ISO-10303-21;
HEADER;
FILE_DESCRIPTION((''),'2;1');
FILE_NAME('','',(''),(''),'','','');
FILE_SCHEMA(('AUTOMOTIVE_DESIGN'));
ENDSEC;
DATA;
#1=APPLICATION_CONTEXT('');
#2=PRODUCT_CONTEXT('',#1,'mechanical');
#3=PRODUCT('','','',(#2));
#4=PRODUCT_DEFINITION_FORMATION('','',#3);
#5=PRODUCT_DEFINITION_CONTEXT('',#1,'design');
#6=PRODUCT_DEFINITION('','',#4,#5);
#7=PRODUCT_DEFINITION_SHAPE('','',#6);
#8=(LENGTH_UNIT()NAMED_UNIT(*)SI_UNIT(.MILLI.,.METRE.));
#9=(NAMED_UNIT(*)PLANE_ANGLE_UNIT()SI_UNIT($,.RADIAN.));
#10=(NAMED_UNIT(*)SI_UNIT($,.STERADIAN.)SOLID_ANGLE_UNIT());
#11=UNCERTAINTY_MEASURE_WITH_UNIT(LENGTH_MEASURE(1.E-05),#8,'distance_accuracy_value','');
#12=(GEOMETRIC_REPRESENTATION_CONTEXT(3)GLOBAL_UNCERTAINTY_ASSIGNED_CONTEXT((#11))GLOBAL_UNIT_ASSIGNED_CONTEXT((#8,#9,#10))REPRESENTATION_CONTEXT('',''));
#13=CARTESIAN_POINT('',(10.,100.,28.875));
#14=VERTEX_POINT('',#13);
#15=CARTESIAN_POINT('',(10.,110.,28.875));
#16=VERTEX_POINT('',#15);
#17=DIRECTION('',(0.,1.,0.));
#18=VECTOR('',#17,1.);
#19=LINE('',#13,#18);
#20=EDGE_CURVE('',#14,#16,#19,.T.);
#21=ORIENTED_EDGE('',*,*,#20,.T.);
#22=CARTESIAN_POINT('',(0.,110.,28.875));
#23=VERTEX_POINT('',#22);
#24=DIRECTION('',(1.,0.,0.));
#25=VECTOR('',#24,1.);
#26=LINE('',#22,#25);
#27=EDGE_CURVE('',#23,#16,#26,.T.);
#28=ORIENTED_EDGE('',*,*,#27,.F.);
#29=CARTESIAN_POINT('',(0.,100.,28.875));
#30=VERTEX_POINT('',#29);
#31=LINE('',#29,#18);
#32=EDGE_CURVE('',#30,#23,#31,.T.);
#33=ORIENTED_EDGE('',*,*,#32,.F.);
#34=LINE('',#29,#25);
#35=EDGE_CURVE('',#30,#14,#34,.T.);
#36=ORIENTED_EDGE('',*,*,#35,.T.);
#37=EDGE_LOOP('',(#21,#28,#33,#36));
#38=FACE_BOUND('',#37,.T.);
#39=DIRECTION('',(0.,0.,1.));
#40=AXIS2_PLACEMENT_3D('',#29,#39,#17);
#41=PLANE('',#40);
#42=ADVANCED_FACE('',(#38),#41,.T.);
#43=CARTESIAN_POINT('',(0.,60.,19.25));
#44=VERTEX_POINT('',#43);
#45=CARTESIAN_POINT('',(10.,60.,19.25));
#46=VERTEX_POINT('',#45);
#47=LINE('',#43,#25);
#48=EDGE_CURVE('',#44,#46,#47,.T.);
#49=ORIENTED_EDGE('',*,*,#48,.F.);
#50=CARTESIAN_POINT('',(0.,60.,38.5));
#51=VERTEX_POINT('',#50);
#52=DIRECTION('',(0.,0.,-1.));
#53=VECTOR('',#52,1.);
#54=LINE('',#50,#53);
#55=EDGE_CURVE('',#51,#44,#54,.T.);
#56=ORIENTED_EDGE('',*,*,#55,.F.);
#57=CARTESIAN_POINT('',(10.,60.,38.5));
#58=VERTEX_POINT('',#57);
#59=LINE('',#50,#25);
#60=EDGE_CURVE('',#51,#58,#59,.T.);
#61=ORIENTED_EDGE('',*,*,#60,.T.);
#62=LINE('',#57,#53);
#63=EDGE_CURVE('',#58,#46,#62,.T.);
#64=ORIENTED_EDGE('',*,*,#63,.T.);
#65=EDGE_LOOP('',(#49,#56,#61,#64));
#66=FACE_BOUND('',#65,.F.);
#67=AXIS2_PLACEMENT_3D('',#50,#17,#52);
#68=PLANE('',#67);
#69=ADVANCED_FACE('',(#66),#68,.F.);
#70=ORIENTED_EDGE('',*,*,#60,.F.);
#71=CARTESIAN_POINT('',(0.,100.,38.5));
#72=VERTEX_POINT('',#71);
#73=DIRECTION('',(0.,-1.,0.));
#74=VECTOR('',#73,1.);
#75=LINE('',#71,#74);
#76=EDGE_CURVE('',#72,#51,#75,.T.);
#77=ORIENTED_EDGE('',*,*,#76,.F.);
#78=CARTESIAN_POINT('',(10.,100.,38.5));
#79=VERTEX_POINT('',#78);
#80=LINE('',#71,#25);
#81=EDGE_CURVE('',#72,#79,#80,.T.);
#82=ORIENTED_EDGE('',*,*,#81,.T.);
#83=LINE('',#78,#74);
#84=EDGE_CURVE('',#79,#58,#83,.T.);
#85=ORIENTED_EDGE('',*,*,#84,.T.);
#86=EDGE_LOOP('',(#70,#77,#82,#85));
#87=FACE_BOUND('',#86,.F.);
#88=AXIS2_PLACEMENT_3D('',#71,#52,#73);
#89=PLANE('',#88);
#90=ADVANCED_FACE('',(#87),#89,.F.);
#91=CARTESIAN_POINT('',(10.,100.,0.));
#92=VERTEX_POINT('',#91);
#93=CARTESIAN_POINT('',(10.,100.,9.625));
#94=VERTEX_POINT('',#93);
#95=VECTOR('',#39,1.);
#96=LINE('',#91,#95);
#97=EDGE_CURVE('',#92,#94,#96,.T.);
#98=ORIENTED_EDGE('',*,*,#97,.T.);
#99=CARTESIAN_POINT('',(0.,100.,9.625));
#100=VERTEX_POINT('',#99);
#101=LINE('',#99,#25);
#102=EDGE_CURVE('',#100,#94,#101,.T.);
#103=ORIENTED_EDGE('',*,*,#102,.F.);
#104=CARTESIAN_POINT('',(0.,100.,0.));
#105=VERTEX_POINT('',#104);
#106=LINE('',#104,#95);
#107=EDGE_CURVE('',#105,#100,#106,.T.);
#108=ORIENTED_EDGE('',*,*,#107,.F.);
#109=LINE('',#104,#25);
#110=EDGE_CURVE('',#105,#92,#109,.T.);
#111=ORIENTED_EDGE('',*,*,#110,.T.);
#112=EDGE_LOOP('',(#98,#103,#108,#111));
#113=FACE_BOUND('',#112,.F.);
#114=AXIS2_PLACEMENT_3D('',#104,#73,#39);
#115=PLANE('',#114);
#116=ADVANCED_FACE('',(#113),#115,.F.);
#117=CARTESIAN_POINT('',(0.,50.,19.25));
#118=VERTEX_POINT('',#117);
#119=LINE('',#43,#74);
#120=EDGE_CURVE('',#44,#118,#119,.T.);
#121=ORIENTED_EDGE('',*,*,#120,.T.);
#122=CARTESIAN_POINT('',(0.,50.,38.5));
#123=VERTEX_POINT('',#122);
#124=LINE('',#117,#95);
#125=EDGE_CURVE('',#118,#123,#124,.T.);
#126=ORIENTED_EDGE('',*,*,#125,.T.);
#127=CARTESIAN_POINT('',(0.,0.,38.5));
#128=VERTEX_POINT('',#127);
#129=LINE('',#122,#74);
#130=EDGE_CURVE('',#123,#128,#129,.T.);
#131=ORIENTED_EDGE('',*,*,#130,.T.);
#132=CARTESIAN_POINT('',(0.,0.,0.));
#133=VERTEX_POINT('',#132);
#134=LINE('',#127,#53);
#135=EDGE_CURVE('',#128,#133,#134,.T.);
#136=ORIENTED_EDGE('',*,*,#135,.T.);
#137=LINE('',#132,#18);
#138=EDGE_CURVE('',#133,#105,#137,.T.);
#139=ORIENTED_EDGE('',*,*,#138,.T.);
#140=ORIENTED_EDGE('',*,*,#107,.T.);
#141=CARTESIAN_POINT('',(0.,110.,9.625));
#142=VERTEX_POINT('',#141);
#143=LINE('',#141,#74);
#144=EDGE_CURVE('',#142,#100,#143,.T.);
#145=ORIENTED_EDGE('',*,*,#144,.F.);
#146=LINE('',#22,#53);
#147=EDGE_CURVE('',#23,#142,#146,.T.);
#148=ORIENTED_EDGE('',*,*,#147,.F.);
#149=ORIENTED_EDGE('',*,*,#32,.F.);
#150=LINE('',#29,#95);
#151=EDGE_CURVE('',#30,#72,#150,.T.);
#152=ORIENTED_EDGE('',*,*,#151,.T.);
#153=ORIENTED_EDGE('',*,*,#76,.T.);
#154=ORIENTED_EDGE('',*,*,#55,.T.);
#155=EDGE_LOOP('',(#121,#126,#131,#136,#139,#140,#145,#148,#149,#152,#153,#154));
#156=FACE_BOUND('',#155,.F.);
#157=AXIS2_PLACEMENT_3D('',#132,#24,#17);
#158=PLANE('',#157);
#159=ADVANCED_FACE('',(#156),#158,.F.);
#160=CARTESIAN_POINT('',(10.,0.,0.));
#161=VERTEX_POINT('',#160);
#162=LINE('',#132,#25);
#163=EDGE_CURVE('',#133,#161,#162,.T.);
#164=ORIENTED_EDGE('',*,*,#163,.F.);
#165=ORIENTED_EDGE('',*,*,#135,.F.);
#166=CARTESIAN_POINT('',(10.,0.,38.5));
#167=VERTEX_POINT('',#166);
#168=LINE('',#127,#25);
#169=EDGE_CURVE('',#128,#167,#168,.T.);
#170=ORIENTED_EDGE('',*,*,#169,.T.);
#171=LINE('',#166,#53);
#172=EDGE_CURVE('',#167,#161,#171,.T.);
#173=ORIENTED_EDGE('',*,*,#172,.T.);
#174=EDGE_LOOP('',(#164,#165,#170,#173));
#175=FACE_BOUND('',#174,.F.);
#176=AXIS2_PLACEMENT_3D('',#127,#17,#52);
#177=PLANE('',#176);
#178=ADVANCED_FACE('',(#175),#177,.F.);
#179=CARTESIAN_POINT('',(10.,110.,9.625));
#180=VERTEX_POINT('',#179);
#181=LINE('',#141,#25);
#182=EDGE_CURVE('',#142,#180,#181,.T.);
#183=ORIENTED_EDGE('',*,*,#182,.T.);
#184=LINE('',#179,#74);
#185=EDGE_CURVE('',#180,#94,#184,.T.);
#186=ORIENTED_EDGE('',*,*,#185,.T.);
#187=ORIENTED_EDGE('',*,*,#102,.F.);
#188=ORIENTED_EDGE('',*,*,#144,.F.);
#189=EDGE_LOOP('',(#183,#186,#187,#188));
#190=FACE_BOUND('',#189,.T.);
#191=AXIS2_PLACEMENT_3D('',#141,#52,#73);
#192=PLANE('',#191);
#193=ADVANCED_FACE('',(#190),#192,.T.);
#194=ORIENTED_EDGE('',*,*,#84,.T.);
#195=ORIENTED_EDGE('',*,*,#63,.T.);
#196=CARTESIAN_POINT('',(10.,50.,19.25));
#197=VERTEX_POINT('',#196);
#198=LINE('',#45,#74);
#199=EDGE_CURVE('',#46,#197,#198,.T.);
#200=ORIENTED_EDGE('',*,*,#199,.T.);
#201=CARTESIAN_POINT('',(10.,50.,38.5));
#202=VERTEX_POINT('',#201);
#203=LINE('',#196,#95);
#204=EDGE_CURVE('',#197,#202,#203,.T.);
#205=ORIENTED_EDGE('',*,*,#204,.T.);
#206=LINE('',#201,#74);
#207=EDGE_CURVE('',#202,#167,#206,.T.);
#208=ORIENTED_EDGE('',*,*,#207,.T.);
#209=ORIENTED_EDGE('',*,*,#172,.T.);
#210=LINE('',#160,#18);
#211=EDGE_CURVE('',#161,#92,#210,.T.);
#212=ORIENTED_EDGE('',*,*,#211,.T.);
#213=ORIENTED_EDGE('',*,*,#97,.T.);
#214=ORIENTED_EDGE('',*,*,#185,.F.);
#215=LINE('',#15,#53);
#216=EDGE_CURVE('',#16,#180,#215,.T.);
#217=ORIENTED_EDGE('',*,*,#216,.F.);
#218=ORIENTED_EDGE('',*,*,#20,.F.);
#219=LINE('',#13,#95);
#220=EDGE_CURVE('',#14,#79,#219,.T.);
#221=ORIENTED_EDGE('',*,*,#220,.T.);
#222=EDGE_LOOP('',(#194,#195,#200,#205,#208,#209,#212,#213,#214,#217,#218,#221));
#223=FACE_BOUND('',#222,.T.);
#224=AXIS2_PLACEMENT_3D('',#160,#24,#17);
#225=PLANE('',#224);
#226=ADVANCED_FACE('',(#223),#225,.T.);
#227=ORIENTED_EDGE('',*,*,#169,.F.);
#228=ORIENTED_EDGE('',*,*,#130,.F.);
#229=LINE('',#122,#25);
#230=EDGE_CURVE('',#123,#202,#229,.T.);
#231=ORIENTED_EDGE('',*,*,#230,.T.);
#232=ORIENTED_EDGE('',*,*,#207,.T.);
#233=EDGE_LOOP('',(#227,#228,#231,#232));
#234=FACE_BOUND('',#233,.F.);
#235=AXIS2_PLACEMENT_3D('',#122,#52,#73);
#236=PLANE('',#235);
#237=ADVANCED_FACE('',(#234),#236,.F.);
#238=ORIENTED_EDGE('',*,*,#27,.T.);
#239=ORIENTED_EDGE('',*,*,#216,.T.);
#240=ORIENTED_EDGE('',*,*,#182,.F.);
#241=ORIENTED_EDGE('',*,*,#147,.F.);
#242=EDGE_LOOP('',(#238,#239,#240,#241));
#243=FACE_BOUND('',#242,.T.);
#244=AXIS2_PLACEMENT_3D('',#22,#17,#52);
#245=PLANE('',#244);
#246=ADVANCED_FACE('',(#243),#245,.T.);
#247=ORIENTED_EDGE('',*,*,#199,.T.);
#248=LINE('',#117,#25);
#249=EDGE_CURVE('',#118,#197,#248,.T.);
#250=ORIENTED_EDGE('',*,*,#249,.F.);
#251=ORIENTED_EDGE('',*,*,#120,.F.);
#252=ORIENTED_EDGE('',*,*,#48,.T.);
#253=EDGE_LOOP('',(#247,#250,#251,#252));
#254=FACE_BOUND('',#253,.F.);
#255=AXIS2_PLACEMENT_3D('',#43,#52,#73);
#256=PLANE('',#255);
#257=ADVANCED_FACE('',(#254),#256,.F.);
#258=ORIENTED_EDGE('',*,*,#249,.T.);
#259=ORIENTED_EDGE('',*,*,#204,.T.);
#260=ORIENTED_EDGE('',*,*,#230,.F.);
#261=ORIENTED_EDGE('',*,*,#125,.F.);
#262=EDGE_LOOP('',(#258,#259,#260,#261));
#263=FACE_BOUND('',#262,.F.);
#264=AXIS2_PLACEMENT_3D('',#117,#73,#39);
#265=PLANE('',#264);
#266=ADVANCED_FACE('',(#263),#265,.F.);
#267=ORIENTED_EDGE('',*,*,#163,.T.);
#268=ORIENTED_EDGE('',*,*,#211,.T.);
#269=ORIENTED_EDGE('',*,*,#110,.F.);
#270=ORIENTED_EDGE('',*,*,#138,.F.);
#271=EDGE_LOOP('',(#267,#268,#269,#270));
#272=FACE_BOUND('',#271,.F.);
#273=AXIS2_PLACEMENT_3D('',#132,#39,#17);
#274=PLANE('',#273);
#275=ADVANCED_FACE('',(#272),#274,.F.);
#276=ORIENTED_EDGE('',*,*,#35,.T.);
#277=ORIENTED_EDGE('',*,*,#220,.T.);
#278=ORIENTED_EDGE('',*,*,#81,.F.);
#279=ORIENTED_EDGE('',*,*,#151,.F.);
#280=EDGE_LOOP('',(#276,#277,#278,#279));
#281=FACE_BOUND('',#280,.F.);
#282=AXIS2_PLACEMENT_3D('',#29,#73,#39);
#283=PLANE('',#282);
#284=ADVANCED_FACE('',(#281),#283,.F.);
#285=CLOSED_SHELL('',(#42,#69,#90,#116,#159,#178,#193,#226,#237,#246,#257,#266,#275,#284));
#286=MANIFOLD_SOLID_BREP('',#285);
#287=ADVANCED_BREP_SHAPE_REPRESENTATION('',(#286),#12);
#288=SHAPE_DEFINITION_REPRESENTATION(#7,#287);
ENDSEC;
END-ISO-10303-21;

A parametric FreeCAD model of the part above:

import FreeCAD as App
import Part
import Sketcher

V = App.Vector


def add_polygon(sketch, points):
    """Adds a closed chain of lines whose ends are joined by coincident constraints."""
    first, n = sketch.GeometryCount, len(points)
    for a, b in zip(points, points[1:] + points[:1]):
        sketch.addGeometry(Part.LineSegment(App.Vector(*a, 0), App.Vector(*b, 0)), False)
    for i in range(n):
        sketch.addConstraint(Sketcher.Constraint("Coincident", first + i, 2, first + (i + 1) % n, 1))

doc = App.newDocument("Part")
body = doc.addObject("PartDesign::Body", "Body")

# Sketch on YZ plane
sketch1 = doc.addObject("Sketcher::SketchObject", "Sketch")
body.addObject(sketch1)
sketch1.AttachmentSupport = (doc.YZ_Plane, [""])
sketch1.MapMode = "FlatFace"
add_polygon(sketch1, [(0, 38), (0, 0), (100, 0), (100, 10), (110, 10), (110, 29), (100, 29), (100, 38), (60, 38), (60, 19), (50, 19), (50, 38)])  # lines 0-11
sketch1.addConstraint(Sketcher.Constraint("Vertical", 0))
sketch1.addConstraint(Sketcher.Constraint("Horizontal", 1))
sketch1.addConstraint(Sketcher.Constraint("Vertical", 2))
sketch1.addConstraint(Sketcher.Constraint("Horizontal", 3))
sketch1.addConstraint(Sketcher.Constraint("Vertical", 4))
sketch1.addConstraint(Sketcher.Constraint("Horizontal", 5))
sketch1.addConstraint(Sketcher.Constraint("Vertical", 6))
sketch1.addConstraint(Sketcher.Constraint("Horizontal", 7))
sketch1.addConstraint(Sketcher.Constraint("Vertical", 8))
sketch1.addConstraint(Sketcher.Constraint("Horizontal", 9))
sketch1.addConstraint(Sketcher.Constraint("Vertical", 10))
sketch1.addConstraint(Sketcher.Constraint("Horizontal", 11))
sketch1.addConstraint(Sketcher.Constraint("Coincident", 0, 2, -1, 1))
sketch1.addConstraint(Sketcher.Constraint("Horizontal", 7, 2, 10, 2))
sketch1.addConstraint(Sketcher.Constraint("Vertical", 2, 2, 5, 2))
sketch1.addConstraint(Sketcher.Constraint("Equal", 5, 9))
sketch1.addConstraint(Sketcher.Constraint("Equal", 2, 6))
sketch1.addConstraint(Sketcher.Constraint("Equal", 4, 8))
sketch1.addConstraint(Sketcher.Constraint("DistanceX", 1, 1, 1, 2, 100.0))
sketch1.addConstraint(Sketcher.Constraint("DistanceX", 3, 1, 3, 2, 10.0))
sketch1.addConstraint(Sketcher.Constraint("DistanceX", 11, 2, 11, 1, 50.0))
sketch1.addConstraint(Sketcher.Constraint("DistanceY", 0, 2, 0, 1, 38.5))
sketch1.addConstraint(Sketcher.Constraint("DistanceY", 4, 1, 4, 2, 19.25))
pad1 = doc.addObject("PartDesign::Pad", "Pad")
body.addObject(pad1)
pad1.Profile = sketch1
pad1.Length = 10

doc.recompute()
